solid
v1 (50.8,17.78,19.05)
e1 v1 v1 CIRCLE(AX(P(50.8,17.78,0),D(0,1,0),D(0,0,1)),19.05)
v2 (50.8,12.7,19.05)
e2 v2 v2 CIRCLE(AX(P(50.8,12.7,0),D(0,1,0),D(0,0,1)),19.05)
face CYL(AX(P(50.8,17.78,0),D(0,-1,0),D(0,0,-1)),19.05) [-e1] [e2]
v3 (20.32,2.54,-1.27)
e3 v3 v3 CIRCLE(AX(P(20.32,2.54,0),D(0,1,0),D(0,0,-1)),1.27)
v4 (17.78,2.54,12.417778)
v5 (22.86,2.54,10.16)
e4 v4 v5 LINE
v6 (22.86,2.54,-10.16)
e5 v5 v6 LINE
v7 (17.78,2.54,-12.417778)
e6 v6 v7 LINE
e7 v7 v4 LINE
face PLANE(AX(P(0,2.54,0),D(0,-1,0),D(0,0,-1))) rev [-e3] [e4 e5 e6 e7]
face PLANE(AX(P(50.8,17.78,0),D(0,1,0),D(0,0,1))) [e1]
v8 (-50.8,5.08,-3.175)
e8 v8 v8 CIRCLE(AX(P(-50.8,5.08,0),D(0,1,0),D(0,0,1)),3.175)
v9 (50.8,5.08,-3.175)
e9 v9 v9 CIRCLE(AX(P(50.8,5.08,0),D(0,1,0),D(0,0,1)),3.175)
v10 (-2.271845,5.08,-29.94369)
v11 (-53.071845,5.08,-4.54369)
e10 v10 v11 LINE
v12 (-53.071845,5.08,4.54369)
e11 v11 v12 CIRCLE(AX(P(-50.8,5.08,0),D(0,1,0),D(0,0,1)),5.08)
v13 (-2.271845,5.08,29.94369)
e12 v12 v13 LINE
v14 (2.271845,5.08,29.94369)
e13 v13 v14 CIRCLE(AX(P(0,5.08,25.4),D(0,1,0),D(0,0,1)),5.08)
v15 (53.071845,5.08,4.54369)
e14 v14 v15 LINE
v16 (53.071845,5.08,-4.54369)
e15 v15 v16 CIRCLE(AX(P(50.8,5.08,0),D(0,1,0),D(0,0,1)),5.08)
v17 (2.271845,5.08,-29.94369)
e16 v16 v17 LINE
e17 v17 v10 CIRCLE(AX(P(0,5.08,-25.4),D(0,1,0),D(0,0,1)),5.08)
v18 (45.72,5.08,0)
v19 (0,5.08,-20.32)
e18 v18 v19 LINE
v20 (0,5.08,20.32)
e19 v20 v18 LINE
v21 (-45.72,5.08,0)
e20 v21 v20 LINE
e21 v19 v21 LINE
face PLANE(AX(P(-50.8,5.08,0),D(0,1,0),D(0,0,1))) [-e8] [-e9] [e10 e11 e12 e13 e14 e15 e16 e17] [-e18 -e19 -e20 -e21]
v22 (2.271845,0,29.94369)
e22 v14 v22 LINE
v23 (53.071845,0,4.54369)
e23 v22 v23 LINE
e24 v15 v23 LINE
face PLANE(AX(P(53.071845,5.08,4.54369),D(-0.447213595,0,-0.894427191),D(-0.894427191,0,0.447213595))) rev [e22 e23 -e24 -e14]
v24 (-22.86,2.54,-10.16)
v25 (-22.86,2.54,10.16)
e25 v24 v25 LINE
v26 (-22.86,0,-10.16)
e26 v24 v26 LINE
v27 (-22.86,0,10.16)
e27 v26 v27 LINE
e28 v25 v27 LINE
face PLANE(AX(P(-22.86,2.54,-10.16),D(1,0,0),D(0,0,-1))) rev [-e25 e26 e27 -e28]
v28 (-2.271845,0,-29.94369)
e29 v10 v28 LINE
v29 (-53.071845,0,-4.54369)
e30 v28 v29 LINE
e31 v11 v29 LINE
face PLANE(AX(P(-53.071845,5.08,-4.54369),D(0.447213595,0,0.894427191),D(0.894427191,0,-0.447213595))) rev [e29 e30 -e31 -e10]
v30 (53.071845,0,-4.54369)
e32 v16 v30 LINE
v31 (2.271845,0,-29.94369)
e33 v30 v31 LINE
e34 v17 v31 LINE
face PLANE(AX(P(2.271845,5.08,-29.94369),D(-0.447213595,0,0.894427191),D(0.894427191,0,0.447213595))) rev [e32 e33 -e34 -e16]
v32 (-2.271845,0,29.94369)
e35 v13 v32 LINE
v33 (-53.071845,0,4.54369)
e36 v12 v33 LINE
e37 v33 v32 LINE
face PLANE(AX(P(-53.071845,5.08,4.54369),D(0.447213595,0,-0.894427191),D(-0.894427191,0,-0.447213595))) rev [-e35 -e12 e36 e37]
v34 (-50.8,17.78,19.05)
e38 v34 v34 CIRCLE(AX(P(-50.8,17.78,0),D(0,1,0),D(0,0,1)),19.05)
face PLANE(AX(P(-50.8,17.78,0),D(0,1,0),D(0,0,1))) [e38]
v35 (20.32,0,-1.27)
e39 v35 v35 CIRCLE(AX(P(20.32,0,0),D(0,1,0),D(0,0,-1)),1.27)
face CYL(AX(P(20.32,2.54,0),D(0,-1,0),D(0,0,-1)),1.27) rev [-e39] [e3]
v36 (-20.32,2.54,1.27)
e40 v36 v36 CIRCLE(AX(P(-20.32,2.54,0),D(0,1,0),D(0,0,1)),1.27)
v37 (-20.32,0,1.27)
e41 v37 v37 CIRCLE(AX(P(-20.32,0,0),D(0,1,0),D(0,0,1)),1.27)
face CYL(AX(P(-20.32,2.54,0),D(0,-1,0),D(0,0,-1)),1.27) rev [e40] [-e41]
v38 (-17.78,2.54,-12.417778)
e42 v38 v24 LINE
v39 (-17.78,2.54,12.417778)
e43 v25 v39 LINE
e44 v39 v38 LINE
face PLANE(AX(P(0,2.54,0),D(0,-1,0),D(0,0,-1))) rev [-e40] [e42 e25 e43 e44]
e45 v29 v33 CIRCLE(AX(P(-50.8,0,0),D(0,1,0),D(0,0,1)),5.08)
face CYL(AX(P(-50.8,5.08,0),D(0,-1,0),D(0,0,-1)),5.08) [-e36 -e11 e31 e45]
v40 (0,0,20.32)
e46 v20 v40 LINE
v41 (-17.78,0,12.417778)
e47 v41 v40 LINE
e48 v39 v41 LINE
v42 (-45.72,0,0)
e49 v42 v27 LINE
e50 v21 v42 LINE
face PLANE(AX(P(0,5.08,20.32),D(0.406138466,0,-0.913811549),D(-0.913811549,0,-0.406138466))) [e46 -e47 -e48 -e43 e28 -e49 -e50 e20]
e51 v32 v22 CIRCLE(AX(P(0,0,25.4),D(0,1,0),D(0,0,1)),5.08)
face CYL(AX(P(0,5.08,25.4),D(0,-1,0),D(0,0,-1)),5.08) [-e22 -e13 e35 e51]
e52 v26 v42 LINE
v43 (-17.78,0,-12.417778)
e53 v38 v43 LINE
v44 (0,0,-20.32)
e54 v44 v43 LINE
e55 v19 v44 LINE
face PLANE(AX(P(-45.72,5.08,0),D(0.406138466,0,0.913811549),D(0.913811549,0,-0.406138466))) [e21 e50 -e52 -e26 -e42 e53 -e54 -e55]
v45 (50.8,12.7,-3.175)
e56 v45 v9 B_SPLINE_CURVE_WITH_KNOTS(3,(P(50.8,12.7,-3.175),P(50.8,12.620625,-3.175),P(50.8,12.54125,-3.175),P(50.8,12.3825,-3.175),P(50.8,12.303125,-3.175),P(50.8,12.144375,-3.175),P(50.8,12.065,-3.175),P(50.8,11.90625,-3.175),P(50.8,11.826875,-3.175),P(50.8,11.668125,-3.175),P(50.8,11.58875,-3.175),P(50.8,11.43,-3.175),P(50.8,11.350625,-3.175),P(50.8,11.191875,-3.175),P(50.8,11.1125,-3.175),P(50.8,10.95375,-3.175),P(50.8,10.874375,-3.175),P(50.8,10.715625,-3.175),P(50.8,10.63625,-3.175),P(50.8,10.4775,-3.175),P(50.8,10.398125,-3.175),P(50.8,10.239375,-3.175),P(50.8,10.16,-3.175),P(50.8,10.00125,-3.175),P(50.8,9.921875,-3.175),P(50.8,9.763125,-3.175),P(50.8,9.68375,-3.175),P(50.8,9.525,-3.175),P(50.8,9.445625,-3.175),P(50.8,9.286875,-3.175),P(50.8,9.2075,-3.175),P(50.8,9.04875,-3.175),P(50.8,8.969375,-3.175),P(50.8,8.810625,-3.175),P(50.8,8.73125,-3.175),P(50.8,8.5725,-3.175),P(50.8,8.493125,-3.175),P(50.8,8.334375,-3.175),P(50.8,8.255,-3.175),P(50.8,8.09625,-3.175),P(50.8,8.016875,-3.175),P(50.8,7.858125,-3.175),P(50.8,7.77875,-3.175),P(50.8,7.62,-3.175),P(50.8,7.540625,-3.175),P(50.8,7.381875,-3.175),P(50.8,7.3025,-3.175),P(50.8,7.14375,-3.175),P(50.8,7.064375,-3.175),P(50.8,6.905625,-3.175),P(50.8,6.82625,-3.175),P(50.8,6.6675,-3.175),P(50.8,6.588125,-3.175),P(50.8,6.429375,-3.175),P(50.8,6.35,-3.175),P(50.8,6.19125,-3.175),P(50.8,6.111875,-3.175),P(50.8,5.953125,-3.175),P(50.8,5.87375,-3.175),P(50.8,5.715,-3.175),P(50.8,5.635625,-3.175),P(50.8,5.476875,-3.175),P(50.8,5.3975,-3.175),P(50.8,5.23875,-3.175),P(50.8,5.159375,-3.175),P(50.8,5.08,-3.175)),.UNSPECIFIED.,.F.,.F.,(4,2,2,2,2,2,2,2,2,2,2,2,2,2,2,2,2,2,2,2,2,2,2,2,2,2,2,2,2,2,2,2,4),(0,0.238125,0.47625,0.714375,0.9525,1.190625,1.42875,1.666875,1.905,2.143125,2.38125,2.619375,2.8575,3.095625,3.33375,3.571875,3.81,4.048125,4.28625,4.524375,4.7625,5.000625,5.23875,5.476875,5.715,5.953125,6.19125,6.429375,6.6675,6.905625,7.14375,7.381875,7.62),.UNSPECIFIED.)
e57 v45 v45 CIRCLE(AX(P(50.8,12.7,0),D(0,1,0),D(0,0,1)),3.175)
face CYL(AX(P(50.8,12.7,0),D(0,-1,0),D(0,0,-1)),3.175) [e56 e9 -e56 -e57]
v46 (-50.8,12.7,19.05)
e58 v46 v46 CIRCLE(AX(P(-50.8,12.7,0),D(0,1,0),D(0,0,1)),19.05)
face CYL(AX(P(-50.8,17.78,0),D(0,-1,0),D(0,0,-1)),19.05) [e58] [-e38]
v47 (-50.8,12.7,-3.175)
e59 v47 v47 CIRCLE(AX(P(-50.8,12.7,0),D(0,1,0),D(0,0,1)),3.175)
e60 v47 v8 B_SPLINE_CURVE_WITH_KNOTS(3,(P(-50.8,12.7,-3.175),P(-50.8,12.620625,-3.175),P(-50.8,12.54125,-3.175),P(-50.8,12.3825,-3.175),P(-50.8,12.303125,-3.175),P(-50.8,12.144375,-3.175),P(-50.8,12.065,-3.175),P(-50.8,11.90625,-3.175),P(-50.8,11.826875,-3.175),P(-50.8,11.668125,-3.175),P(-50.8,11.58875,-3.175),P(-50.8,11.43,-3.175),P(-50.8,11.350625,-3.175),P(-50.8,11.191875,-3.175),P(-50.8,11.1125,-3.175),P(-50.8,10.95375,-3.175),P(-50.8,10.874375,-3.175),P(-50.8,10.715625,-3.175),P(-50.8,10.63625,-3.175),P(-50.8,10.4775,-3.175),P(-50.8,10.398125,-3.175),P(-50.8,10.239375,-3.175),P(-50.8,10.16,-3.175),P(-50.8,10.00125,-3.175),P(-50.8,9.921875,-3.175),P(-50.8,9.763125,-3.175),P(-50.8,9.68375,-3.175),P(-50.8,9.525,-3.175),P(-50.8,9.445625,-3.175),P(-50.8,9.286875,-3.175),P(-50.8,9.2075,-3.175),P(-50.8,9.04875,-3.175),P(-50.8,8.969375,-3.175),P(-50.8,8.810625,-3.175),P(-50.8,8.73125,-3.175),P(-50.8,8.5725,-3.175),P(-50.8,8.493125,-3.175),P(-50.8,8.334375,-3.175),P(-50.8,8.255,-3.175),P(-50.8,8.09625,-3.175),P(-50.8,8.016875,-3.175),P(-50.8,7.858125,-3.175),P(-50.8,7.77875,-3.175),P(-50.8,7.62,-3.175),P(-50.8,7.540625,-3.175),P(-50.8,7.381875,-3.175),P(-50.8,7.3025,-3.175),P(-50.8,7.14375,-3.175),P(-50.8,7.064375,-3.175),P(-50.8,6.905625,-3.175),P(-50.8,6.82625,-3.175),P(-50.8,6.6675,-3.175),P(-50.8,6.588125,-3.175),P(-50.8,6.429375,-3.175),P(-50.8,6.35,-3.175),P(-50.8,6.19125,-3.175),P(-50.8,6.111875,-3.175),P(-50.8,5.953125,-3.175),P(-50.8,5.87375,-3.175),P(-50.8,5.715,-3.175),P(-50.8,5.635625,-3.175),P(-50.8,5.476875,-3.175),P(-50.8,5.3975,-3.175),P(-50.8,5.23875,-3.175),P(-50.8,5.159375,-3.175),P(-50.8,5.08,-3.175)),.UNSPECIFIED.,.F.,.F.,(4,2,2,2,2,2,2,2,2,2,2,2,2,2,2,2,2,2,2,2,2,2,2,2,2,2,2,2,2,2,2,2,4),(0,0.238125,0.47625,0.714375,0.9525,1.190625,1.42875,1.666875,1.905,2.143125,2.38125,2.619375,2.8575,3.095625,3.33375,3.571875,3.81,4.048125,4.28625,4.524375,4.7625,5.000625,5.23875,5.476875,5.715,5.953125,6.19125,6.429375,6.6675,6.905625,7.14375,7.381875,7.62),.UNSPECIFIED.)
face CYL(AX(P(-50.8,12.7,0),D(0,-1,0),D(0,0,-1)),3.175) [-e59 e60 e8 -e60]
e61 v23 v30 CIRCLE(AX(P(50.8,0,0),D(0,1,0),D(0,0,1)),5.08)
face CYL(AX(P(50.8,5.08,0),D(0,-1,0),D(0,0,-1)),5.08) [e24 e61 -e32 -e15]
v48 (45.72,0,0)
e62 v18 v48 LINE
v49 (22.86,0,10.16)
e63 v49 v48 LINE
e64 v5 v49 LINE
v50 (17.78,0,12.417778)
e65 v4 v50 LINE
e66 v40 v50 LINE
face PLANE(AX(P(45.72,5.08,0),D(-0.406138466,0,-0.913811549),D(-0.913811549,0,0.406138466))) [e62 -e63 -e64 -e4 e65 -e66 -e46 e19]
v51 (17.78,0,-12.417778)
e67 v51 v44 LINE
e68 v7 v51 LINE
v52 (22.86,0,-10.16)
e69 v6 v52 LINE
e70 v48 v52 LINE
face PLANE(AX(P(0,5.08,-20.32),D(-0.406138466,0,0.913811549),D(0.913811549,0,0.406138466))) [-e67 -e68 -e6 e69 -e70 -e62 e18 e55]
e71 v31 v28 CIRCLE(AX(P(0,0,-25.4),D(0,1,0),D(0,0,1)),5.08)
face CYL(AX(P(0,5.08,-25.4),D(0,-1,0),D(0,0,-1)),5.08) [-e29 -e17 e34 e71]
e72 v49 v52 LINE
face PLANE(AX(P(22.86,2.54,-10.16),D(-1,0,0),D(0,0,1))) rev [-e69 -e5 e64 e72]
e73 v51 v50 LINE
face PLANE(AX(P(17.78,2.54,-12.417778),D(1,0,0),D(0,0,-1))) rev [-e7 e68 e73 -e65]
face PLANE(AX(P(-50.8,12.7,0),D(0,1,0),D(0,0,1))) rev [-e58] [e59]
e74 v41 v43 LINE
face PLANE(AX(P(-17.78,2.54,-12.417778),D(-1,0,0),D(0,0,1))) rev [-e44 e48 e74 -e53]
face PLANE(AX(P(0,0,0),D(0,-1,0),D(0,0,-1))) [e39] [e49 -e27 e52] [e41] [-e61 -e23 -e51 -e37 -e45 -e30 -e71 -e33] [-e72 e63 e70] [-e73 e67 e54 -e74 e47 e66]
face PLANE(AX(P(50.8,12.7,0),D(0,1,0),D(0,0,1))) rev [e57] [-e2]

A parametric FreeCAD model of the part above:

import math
import FreeCAD as App
import Part
import Sketcher
from FreeCAD import Vector
Q = App.Units.Quantity

doc = App.newDocument("Part")
body = doc.addObject("PartDesign::Body", "Body")

# Sketch on XZ plane
sketch1 = body.newObject("Sketcher::SketchObject", "Sketch")
sketch1.AttachmentSupport = (doc.getObject("XZ_Plane"), [""])
sketch1.MapMode = "FlatFace"
sketch1.addGeometry([
    Part.LineSegment(Vector(-22.9, -10.2, 0), Vector(-22.9, 10.2, 0)),  # 0
    Part.LineSegment(Vector(-22.9, 10.2, 0), Vector(-17.8, 12.4, 0)),  # 1
    Part.LineSegment(Vector(-17.8, 12.4, 0), Vector(-17.8, -12.4, 0)),  # 2
    Part.LineSegment(Vector(-17.8, -12.4, 0), Vector(-22.9, -10.2, 0)),  # 3
    Part.Circle(Vector(-20.3, 0, 0), Vector(0, 0, 1), 1.3),  # 4
], False)
sketch1.addConstraint([
    Sketcher.Constraint("Coincident", 0, 2, 1, 1),
    Sketcher.Constraint("Coincident", 1, 2, 2, 1),
    Sketcher.Constraint("Coincident", 2, 2, 3, 1),
    Sketcher.Constraint("Coincident", 3, 2, 0, 1),
    Sketcher.Constraint("Vertical", 0),
    Sketcher.Constraint("Vertical", 2),
    Sketcher.Constraint("PointOnObject", 4, 3, -1),
    Sketcher.Constraint("Equal", 1, 3),
    Sketcher.Constraint("Diameter", 4, Q("0.1 in")),
    Sketcher.Constraint("DistanceY", 0, 1, 0, 2, Q("0.8 in")),
    Sketcher.Constraint("DistanceX", 4, 3, -1, 1, Q("0.8 in")),
    Sketcher.Constraint("DistanceX", 0, 2, -1, 1, Q("0.9 in")),
    Sketcher.Constraint("DistanceY", -1, 1, 0, 2, Q("0.4 in")),
    Sketcher.Constraint("DistanceX", 1, 2, -1, 1, Q("0.7 in")),
    Sketcher.Constraint("DistanceY", 2, 2, 2, 1, 24.835556),
])
pad1 = body.newObject("PartDesign::Pad", "Pad")
pad1.Profile = sketch1
pad1.Length = Q("0.1 in")
pad1.Reversed = True
body2 = doc.addObject("PartDesign::Body", "Body001")

# Sketch on XZ plane
sketch2 = body2.newObject("Sketcher::SketchObject", "Sketch001")
sketch2.AttachmentSupport = (doc.getObject("XZ_Plane001"), [""])
sketch2.MapMode = "FlatFace"
sketch2.addGeometry([
    Part.LineSegment(Vector(22.9, -10.2, 0), Vector(17.8, -12.4, 0)),  # 0
    Part.LineSegment(Vector(17.8, -12.4, 0), Vector(17.8, 12.4, 0)),  # 1
    Part.LineSegment(Vector(17.8, 12.4, 0), Vector(22.9, 10.2, 0)),  # 2
    Part.LineSegment(Vector(22.9, 10.2, 0), Vector(22.9, -10.2, 0)),  # 3
    Part.Circle(Vector(20.3, 0, 0), Vector(0, 0, 1), 1.3),  # 4
], False)
sketch2.addConstraint([
    Sketcher.Constraint("Coincident", 0, 2, 1, 1),
    Sketcher.Constraint("Coincident", 1, 2, 2, 1),
    Sketcher.Constraint("Coincident", 2, 2, 3, 1),
    Sketcher.Constraint("Coincident", 3, 2, 0, 1),
    Sketcher.Constraint("Vertical", 1),
    Sketcher.Constraint("Vertical", 3),
    Sketcher.Constraint("PointOnObject", 4, 3, -1),
    Sketcher.Constraint("Equal", 0, 2),
    Sketcher.Constraint("Diameter", 4, Q("0.1 in")),
    Sketcher.Constraint("DistanceY", 3, 2, 3, 1, Q("0.8 in")),
    Sketcher.Constraint("DistanceX", -1, 1, 4, 3, Q("0.8 in")),
    Sketcher.Constraint("DistanceX", -1, 1, 0, 2, Q("0.7 in")),
    Sketcher.Constraint("DistanceX", -1, 1, 2, 2, Q("0.9 in")),
    Sketcher.Constraint("DistanceY", -1, 1, 2, 2, Q("0.4 in")),
    Sketcher.Constraint("DistanceY", 1, 1, 1, 2, 24.835556),
])
pad2 = body2.newObject("PartDesign::Pad", "Pad001")
pad2.Profile = sketch2
pad2.Length = Q("0.1 in")
pad2.Reversed = True
body.AllowCompound = True
doc.recompute()

boolean = body.newObject("PartDesign::Boolean", "Boolean")
boolean.Type = "Fuse"
boolean.addObjects([body2])

# Sketch on XZ plane
sketch3 = body.newObject("Sketcher::SketchObject", "Sketch002")
sketch3.AttachmentSupport = (doc.getObject("XZ_Plane"), [""])
sketch3.MapMode = "FlatFace"
sketch3.addGeometry([
    Part.LineSegment(Vector(-53.1, 4.5, 0), Vector(-2.3, 29.9, 0)),  # 0
    Part.ArcOfCircle(Part.Circle(Vector(0, 25.4, 0), Vector(0, 0, 1), 5.1), math.radians(63), math.radians(117)),  # 1
    Part.LineSegment(Vector(2.3, 29.9, 0), Vector(53.1, 4.5, 0)),  # 2
    Part.ArcOfCircle(Part.Circle(Vector(50.8, 0, 0), Vector(0, 0, 1), 5.1), math.radians(-63), math.radians(63)),  # 3
    Part.LineSegment(Vector(53.1, -4.5, 0), Vector(2.3, -29.9, 0)),  # 4
    Part.ArcOfCircle(Part.Circle(Vector(0, -25.4, 0), Vector(0, 0, 1), 5.1), math.radians(-117), math.radians(-63)),  # 5
    Part.LineSegment(Vector(-2.3, -29.9, 0), Vector(-53.1, -4.5, 0)),  # 6
    Part.ArcOfCircle(Part.Circle(Vector(-50.8, 0, 0), Vector(0, 0, 1), 5.1), math.radians(117), math.radians(243)),  # 7
    Part.LineSegment(Vector(0, 20.3, 0), Vector(-45.7, 0, 0)),  # 8
    Part.LineSegment(Vector(-45.7, 0, 0), Vector(0, -20.3, 0)),  # 9
    Part.LineSegment(Vector(0, -20.3, 0), Vector(45.7, 0, 0)),  # 10
    Part.LineSegment(Vector(45.7, 0, 0), Vector(0, 20.3, 0)),  # 11
], False)
sketch3.addConstraint([
    Sketcher.Constraint("Tangent", 0, 2, 1, 2),
    Sketcher.Constraint("Tangent", 1, 1, 2, 1),
    Sketcher.Constraint("Tangent", 2, 2, 3, 2),
    Sketcher.Constraint("Tangent", 3, 1, 4, 1),
    Sketcher.Constraint("Tangent", 4, 2, 5, 2),
    Sketcher.Constraint("Tangent", 5, 1, 6, 1),
    Sketcher.Constraint("Tangent", 6, 2, 7, 2),
    Sketcher.Constraint("Tangent", 7, 1, 0, 1),
    Sketcher.Constraint("Coincident", 8, 2, 9, 1),
    Sketcher.Constraint("Coincident", 9, 2, 10, 1),
    Sketcher.Constraint("Coincident", 10, 2, 11, 1),
    Sketcher.Constraint("Coincident", 11, 2, 8, 1),
    Sketcher.Constraint("Equal", 1, 3),
    Sketcher.Constraint("Equal", 3, 5),
    Sketcher.Constraint("Equal", 5, 7),
    Sketcher.Constraint("Symmetric", 1, 3, 5, 3, -1, 1),
    Sketcher.Constraint("Symmetric", 3, 3, 7, 3, -1, 1),
    Sketcher.Constraint("Symmetric", 8, 2, 10, 2, -1, 1),
    Sketcher.Constraint("Symmetric", 9, 2, 11, 2, -1, 1),
    Sketcher.Constraint("Symmetric", 0, 2, 1, 1, -2),
    Sketcher.Constraint("PointOnObject", 8, 2, -1),
    Sketcher.Constraint("PointOnObject", 9, 2, -2),
    Sketcher.Constraint("Radius", 1, Q("0.2 in")),
    Sketcher.Constraint("DistanceY", -1, 1, 1, 3, Q("1 in")),
    Sketcher.Constraint("DistanceX", -1, 1, 3, 3, Q("2 in")),
    Sketcher.Constraint("DistanceX", 8, 2, -1, 1, Q("1.8 in")),
    Sketcher.Constraint("DistanceY", 9, 2, -1, 1, Q("0.8 in")),
])
pad3 = body.newObject("PartDesign::Pad", "Pad002")
pad3.Profile = sketch3
pad3.Length = Q("0.2 in")
pad3.Reversed = True

# Sketch on XZ plane
sketch4 = body.newObject("Sketcher::SketchObject", "Sketch003")
sketch4.AttachmentSupport = (doc.getObject("XZ_Plane"), [""])
sketch4.MapMode = "FlatFace"
sketch4.AttachmentOffset = App.Placement(Vector(0, 0, -0.2 * 25.4), App.Rotation())
sketch4.addGeometry([
    Part.Circle(Vector(-50.8, 0, 0), Vector(0, 0, 1), 3.2),
    Part.Circle(Vector(50.8, 0, 0), Vector(0, 0, 1), 3.2),
], False)
sketch4.addConstraint([
    Sketcher.Constraint("Equal", 0, 1),
    Sketcher.Constraint("Symmetric", 0, 3, 1, 3, -1, 1),
    Sketcher.Constraint("PointOnObject", 0, 3, -1),
    Sketcher.Constraint("Diameter", 0, Q("0.25 in")),
    Sketcher.Constraint("DistanceX", 0, 3, -1, 1, Q("2 in")),
])
pad4 = body.newObject("PartDesign::Pad", "Pad003")
pad4.Profile = sketch4
pad4.Length = Q("0.3 in")
pad4.Reversed = True

# Sketch on XZ plane
sketch5 = body.newObject("Sketcher::SketchObject", "Sketch004")
sketch5.AttachmentSupport = (doc.getObject("XZ_Plane"), [""])
sketch5.MapMode = "FlatFace"
sketch5.AttachmentOffset = App.Placement(Vector(0, 0, -0.5 * 25.4), App.Rotation())
sketch5.addGeometry(Part.Circle(Vector(-51, 0, 0), Vector(0, 0, 1), 19), False)
sketch5.addConstraint([
    Sketcher.Constraint("PointOnObject", 0, 3, -1),
    Sketcher.Constraint("Diameter", 0, Q("1.5 in")),
    Sketcher.Constraint("DistanceX", 0, 3, -1, 1, Q("2 in")),
])
pad5 = body.newObject("PartDesign::Pad", "Pad004")
pad5.Profile = sketch5
pad5.Length = Q("0.2 in")
pad5.Reversed = True

# Sketch on XZ plane
sketch6 = body.newObject("Sketcher::SketchObject", "Sketch005")
sketch6.AttachmentSupport = (doc.getObject("XZ_Plane"), [""])
sketch6.MapMode = "FlatFace"
sketch6.AttachmentOffset = App.Placement(Vector(0, 0, -0.5 * 25.4), App.Rotation())
sketch6.addGeometry(Part.Circle(Vector(51, 0, 0), Vector(0, 0, 1), 19), False)
sketch6.addConstraint([
    Sketcher.Constraint("PointOnObject", 0, 3, -1),
    Sketcher.Constraint("Diameter", 0, Q("1.5 in")),
    Sketcher.Constraint("DistanceX", -1, 1, 0, 3, Q("2 in")),
])
pad6 = body.newObject("PartDesign::Pad", "Pad005")
pad6.Profile = sketch6
pad6.Length = Q("0.2 in")
pad6.Reversed = True

doc.recompute()
